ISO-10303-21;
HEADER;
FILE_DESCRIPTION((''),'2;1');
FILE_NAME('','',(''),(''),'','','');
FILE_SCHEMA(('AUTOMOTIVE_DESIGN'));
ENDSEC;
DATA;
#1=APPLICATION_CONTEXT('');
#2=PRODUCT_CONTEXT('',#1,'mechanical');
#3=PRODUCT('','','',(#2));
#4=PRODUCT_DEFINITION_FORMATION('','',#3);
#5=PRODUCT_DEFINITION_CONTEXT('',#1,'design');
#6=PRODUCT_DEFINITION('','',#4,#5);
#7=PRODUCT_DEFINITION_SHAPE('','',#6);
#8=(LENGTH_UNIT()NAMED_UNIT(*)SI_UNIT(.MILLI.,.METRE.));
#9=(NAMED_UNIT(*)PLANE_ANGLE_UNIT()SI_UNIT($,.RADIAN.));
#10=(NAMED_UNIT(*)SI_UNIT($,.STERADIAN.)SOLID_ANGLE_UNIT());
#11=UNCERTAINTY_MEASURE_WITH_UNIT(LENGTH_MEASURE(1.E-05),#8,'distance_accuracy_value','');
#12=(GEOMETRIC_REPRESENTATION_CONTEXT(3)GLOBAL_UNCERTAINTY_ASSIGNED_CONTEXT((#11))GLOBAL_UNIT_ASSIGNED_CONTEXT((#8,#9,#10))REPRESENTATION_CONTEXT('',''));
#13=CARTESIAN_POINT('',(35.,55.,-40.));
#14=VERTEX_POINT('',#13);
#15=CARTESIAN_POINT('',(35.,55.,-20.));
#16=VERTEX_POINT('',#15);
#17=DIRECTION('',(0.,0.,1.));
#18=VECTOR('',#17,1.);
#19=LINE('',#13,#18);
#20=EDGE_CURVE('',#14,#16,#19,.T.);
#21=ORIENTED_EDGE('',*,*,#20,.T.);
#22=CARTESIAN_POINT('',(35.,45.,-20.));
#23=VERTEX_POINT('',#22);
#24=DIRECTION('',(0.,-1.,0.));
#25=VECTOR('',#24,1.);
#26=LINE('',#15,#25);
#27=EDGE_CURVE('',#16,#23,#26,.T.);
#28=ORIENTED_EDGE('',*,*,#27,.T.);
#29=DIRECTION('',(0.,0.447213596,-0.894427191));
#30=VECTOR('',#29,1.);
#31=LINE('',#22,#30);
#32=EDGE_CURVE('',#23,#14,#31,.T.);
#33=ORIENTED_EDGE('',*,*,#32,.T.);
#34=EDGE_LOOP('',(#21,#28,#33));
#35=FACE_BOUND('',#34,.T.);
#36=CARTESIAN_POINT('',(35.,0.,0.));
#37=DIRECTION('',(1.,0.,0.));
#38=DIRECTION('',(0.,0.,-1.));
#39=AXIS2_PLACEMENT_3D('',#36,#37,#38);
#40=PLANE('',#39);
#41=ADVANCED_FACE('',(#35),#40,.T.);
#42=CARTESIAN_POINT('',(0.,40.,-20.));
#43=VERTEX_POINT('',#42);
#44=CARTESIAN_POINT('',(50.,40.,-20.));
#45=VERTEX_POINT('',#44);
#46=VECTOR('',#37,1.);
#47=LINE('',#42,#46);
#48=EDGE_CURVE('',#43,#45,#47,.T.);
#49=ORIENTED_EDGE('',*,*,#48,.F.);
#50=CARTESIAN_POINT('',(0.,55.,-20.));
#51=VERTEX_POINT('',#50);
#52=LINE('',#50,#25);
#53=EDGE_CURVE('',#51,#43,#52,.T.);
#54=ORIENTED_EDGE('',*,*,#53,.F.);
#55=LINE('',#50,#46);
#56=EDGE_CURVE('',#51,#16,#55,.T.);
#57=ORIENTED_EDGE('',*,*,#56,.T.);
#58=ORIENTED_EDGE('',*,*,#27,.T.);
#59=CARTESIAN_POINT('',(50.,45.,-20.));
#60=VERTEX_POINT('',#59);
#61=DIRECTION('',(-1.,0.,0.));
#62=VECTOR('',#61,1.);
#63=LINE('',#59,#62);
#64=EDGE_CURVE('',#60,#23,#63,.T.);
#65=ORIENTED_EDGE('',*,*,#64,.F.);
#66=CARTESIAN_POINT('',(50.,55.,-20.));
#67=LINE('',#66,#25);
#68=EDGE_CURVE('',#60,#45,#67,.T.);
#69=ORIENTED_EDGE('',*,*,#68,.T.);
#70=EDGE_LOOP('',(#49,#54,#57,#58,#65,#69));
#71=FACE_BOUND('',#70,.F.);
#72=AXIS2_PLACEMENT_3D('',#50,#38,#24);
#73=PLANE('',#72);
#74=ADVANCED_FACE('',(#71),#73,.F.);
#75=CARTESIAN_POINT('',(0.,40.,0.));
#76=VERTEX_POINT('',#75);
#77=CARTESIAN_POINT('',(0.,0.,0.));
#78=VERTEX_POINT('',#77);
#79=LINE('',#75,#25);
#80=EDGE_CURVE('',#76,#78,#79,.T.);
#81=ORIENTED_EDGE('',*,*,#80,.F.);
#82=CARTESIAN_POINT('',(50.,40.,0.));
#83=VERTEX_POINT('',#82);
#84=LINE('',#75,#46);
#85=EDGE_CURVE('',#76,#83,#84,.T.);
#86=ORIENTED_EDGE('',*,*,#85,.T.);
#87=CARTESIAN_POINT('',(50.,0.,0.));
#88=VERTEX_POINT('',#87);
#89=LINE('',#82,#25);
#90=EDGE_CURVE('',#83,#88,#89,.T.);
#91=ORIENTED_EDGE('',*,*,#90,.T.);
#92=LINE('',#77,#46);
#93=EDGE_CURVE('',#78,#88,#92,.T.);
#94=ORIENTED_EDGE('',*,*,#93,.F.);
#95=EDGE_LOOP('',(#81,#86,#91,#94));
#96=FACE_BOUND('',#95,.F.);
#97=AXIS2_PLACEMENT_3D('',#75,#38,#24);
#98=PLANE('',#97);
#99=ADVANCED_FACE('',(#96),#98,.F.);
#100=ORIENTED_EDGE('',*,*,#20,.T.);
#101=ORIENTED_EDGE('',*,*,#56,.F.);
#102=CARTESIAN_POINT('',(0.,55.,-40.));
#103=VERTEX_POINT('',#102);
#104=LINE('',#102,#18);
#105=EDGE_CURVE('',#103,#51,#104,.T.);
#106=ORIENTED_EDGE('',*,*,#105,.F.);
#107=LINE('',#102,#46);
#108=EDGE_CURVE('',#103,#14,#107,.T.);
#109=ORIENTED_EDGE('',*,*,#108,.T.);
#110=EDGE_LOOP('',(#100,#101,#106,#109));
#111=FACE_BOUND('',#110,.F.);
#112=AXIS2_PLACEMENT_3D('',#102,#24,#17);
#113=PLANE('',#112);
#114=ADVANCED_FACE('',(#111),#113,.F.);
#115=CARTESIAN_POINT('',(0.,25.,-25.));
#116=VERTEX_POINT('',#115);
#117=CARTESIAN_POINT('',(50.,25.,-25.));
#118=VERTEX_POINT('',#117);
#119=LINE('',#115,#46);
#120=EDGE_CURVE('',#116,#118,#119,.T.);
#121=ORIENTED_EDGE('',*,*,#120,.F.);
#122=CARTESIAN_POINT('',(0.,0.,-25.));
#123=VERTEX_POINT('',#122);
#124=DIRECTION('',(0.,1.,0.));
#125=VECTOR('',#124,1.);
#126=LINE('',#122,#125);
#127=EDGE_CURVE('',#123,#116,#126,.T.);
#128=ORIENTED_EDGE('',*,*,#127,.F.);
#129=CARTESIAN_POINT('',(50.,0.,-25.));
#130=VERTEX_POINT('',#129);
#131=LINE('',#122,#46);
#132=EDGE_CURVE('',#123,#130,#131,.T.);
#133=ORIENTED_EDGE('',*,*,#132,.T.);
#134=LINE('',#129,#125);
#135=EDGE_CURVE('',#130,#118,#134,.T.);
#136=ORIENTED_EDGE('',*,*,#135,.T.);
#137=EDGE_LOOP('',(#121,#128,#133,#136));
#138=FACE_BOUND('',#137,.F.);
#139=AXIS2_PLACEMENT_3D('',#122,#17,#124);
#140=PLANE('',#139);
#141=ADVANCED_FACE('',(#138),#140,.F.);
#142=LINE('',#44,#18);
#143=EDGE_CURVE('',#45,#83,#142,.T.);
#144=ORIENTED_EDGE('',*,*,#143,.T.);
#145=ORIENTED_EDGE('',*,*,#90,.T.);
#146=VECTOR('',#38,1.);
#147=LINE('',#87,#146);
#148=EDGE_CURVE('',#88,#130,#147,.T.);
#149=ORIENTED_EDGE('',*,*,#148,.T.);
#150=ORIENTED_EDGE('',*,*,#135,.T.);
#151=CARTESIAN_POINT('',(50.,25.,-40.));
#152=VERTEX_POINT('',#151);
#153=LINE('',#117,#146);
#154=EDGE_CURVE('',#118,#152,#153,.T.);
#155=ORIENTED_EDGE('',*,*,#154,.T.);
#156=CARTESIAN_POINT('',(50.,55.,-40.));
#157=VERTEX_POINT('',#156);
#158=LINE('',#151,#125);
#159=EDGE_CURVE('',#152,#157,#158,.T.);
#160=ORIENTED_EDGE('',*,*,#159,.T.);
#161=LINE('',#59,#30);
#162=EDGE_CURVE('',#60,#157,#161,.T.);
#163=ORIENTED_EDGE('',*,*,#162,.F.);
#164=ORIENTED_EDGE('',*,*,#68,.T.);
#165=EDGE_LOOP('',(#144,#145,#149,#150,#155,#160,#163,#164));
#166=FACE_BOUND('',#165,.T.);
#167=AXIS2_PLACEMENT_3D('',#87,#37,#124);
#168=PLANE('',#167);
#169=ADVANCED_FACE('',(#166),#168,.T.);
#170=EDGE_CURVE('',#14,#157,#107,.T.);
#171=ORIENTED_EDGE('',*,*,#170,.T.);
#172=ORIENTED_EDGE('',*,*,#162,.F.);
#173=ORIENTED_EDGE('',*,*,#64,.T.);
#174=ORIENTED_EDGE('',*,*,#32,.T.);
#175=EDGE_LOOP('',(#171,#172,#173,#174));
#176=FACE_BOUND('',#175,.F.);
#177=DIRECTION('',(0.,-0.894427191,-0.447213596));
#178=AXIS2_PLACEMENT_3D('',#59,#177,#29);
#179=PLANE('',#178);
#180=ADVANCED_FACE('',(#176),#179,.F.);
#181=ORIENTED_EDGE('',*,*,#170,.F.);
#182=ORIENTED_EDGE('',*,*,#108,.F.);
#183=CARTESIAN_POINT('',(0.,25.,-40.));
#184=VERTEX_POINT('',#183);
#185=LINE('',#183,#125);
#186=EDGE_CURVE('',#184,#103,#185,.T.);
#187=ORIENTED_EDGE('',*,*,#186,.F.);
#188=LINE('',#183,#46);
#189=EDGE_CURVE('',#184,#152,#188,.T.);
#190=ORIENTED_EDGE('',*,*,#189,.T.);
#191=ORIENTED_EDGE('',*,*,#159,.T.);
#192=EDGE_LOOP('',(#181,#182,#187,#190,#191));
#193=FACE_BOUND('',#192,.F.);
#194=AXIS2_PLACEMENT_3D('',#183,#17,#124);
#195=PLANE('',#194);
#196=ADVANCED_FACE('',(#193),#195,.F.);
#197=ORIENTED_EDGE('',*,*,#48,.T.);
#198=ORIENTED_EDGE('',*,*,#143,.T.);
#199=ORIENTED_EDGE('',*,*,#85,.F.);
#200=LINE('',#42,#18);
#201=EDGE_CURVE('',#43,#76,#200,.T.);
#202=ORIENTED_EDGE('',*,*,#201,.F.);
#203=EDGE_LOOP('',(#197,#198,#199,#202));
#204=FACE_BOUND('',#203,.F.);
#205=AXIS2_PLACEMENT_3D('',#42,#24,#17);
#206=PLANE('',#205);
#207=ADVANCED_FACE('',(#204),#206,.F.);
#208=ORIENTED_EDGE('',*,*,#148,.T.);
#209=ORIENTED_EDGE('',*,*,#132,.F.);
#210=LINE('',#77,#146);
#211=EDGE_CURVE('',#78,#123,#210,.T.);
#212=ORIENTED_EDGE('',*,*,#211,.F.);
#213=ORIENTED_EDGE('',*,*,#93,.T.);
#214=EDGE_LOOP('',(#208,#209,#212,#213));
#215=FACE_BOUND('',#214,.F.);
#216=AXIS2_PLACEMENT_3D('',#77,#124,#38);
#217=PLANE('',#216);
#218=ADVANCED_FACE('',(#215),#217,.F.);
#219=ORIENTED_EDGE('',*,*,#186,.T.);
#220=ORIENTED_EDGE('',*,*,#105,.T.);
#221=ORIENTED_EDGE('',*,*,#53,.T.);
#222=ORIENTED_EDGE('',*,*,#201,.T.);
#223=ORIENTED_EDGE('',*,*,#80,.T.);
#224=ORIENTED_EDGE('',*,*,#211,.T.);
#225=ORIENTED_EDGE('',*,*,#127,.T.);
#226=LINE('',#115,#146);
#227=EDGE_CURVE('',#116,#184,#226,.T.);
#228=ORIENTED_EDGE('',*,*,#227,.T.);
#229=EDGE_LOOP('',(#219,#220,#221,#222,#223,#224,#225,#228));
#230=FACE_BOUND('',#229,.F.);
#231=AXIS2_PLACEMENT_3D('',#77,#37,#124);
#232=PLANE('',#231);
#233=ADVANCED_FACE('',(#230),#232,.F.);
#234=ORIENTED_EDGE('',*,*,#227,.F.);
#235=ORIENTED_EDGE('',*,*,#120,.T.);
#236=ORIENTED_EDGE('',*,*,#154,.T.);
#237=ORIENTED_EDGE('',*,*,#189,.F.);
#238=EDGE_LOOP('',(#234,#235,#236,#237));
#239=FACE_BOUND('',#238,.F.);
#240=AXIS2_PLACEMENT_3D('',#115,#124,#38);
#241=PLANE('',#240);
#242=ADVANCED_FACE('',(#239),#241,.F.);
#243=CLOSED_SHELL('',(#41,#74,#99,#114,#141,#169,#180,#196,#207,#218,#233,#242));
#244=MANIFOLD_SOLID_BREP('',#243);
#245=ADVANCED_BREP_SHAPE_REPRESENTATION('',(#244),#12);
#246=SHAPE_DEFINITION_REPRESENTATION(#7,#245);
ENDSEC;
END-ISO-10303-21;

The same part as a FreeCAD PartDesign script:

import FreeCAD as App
import Part
import Sketcher
from FreeCAD import Vector
Q = App.Units.Quantity


def add_polygon(sketch, points):
    """Adds a closed chain of lines whose ends are joined by coincident constraints."""
    first, n = sketch.GeometryCount, len(points)
    for a, b in zip(points, points[1:] + points[:1]):
        sketch.addGeometry(Part.LineSegment(App.Vector(*a, 0), App.Vector(*b, 0)), False)
    for i in range(n):
        sketch.addConstraint(Sketcher.Constraint("Coincident", first + i, 2, first + (i + 1) % n, 1))

doc = App.newDocument("Part")
body = doc.addObject("PartDesign::Body", "Body")

# Sketch on YZ plane
sketch1 = body.newObject("Sketcher::SketchObject", "Sketch")
sketch1.AttachmentSupport = (doc.getObject("YZ_Plane"), [""])
sketch1.MapMode = "FlatFace"
add_polygon(sketch1, [(40, 0), (0, 0), (0, -25), (25, -25), (25, -40), (55, -40), (55, -20), (40, -20)])  # lines 0-7
sketch1.addConstraint([
    Sketcher.Constraint("Horizontal", 0),
    Sketcher.Constraint("Vertical", 1),
    Sketcher.Constraint("Horizontal", 2),
    Sketcher.Constraint("Vertical", 3),
    Sketcher.Constraint("Horizontal", 4),
    Sketcher.Constraint("Vertical", 5),
    Sketcher.Constraint("Horizontal", 6),
    Sketcher.Constraint("Vertical", 7),
    Sketcher.Constraint("Coincident", 0, 2, -1, 1),
    Sketcher.Constraint("Equal", 2, 1),
    Sketcher.Constraint("Equal", 6, 3),
    Sketcher.Constraint("Equal", 5, 7),
    Sketcher.Constraint("DistanceX", 2, 1, 2, 2, Q("25 mm")),
    Sketcher.Constraint("DistanceX", 4, 1, 4, 2, Q("30 mm")),
    Sketcher.Constraint("DistanceX", 6, 2, 6, 1, Q("15 mm")),
])
pad1 = body.newObject("PartDesign::Pad", "Pad")
pad1.Profile = sketch1
pad1.Length = 50

# Sketch on YZ plane
sketch2 = body.newObject("Sketcher::SketchObject", "Sketch001")
sketch2.AttachmentSupport = (doc.getObject("YZ_Plane"), [""])
sketch2.MapMode = "FlatFace"
sketch2.AttachmentOffset = App.Placement(Vector(0, 0, 50), App.Rotation())
add_polygon(sketch2, [(55, -40), (55, -20), (45, -20)])  # lines 0-2
sketch2.addConstraint([
    Sketcher.Constraint("Vertical", 0),
    Sketcher.Constraint("Horizontal", 1),
    Sketcher.Constraint("DistanceX", 1, 2, 1, 1, Q("10 mm")),
    Sketcher.Constraint("DistanceY", 0, 1, 0, 2, Q("20 mm")),
    Sketcher.Constraint("DistanceX", -1, 1, 0, 2, Q("55 mm")),
    Sketcher.Constraint("DistanceY", 0, 2, -1, 1, Q("20 mm")),
])
pocket1 = body.newObject("PartDesign::Pocket", "Pocket")
pocket1.Profile = sketch2
pocket1.Length = 15

doc.recompute()
